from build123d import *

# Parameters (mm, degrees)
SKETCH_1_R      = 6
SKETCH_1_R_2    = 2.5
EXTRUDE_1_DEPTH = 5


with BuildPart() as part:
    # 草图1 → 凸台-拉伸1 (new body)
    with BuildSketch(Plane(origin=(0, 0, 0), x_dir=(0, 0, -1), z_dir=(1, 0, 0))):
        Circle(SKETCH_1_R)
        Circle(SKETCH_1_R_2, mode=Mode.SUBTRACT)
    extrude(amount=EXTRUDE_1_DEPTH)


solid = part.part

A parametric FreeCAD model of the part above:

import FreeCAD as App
import Part
import Sketcher

doc = App.newDocument("Part")
params = doc.addObject("Spreadsheet::Sheet", "Params")
for row, (alias, value) in enumerate([
    ("sketch1_diameter", "12 mm"),
    ("sketch1_diameter2", "5 mm"),
    ("pad1_length", "5 mm"),
], start=1):
    params.set(f"A{row}", alias)
    params.set(f"B{row}", "=" + value)
    params.setAlias(f"B{row}", alias)

body = doc.addObject("PartDesign::Body", "Body")

sketch1 = body.newObject("Sketcher::SketchObject", "Sketch")
sketch1.AttachmentSupport = (doc.getObject("YZ_Plane"), [""])
sketch1.MapMode = "FlatFace"
sketch1.addGeometry(Part.Circle(App.Vector(0, 0, 0), App.Vector(0, 0, 1), 6), False)
sketch1.addGeometry(Part.Circle(App.Vector(0, 0, 0), App.Vector(0, 0, 1), 2.5), False)
sketch1.addConstraint(Sketcher.Constraint("Coincident", 0, 3, -1, 1))
sketch1.addConstraint(Sketcher.Constraint("Coincident", 1, 3, -1, 1))
sketch1.addConstraint(Sketcher.Constraint("Diameter", 0, 12.0))
sketch1.addConstraint(Sketcher.Constraint("Diameter", 1, 5.0))
sketch1.setExpression("Constraints[2]", "Params.sketch1_diameter")
sketch1.setExpression("Constraints[3]", "Params.sketch1_diameter2")
pad1 = body.newObject("PartDesign::Pad", "Pad")
pad1.Profile = sketch1
pad1.setExpression("Length", "Params.pad1_length")

doc.recompute()
